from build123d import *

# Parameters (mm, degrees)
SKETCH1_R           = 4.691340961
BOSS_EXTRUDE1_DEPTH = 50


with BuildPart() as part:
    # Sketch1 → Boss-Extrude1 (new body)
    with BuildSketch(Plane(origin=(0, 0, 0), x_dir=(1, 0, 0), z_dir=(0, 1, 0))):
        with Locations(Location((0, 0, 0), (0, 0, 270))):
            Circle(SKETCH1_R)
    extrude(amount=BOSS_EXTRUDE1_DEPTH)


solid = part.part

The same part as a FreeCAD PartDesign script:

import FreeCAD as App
import Part
import Sketcher

V = App.Vector
Q = App.Units.Quantity

doc = App.newDocument("Part")
body = doc.addObject("PartDesign::Body", "Body")

sketch1 = body.newObject("Sketcher::SketchObject", "Sketch")
sketch1.AttachmentSupport = (doc.getObject("XZ_Plane"), [""])
sketch1.MapMode = "FlatFace"
sketch1.addGeometry(Part.Circle(V(0, 0, 0), V(0, 0, 1), 4.691341), False)
sketch1.addConstraint(Sketcher.Constraint("Coincident", 0, 3, -1, 1))
sketch1.addConstraint(Sketcher.Constraint("Diameter", 0, Q("9.382682 mm")))
pad1 = body.newObject("PartDesign::Pad", "Pad")
pad1.Profile = sketch1
pad1.Length = 50
pad1.Reversed = True

doc.recompute()
